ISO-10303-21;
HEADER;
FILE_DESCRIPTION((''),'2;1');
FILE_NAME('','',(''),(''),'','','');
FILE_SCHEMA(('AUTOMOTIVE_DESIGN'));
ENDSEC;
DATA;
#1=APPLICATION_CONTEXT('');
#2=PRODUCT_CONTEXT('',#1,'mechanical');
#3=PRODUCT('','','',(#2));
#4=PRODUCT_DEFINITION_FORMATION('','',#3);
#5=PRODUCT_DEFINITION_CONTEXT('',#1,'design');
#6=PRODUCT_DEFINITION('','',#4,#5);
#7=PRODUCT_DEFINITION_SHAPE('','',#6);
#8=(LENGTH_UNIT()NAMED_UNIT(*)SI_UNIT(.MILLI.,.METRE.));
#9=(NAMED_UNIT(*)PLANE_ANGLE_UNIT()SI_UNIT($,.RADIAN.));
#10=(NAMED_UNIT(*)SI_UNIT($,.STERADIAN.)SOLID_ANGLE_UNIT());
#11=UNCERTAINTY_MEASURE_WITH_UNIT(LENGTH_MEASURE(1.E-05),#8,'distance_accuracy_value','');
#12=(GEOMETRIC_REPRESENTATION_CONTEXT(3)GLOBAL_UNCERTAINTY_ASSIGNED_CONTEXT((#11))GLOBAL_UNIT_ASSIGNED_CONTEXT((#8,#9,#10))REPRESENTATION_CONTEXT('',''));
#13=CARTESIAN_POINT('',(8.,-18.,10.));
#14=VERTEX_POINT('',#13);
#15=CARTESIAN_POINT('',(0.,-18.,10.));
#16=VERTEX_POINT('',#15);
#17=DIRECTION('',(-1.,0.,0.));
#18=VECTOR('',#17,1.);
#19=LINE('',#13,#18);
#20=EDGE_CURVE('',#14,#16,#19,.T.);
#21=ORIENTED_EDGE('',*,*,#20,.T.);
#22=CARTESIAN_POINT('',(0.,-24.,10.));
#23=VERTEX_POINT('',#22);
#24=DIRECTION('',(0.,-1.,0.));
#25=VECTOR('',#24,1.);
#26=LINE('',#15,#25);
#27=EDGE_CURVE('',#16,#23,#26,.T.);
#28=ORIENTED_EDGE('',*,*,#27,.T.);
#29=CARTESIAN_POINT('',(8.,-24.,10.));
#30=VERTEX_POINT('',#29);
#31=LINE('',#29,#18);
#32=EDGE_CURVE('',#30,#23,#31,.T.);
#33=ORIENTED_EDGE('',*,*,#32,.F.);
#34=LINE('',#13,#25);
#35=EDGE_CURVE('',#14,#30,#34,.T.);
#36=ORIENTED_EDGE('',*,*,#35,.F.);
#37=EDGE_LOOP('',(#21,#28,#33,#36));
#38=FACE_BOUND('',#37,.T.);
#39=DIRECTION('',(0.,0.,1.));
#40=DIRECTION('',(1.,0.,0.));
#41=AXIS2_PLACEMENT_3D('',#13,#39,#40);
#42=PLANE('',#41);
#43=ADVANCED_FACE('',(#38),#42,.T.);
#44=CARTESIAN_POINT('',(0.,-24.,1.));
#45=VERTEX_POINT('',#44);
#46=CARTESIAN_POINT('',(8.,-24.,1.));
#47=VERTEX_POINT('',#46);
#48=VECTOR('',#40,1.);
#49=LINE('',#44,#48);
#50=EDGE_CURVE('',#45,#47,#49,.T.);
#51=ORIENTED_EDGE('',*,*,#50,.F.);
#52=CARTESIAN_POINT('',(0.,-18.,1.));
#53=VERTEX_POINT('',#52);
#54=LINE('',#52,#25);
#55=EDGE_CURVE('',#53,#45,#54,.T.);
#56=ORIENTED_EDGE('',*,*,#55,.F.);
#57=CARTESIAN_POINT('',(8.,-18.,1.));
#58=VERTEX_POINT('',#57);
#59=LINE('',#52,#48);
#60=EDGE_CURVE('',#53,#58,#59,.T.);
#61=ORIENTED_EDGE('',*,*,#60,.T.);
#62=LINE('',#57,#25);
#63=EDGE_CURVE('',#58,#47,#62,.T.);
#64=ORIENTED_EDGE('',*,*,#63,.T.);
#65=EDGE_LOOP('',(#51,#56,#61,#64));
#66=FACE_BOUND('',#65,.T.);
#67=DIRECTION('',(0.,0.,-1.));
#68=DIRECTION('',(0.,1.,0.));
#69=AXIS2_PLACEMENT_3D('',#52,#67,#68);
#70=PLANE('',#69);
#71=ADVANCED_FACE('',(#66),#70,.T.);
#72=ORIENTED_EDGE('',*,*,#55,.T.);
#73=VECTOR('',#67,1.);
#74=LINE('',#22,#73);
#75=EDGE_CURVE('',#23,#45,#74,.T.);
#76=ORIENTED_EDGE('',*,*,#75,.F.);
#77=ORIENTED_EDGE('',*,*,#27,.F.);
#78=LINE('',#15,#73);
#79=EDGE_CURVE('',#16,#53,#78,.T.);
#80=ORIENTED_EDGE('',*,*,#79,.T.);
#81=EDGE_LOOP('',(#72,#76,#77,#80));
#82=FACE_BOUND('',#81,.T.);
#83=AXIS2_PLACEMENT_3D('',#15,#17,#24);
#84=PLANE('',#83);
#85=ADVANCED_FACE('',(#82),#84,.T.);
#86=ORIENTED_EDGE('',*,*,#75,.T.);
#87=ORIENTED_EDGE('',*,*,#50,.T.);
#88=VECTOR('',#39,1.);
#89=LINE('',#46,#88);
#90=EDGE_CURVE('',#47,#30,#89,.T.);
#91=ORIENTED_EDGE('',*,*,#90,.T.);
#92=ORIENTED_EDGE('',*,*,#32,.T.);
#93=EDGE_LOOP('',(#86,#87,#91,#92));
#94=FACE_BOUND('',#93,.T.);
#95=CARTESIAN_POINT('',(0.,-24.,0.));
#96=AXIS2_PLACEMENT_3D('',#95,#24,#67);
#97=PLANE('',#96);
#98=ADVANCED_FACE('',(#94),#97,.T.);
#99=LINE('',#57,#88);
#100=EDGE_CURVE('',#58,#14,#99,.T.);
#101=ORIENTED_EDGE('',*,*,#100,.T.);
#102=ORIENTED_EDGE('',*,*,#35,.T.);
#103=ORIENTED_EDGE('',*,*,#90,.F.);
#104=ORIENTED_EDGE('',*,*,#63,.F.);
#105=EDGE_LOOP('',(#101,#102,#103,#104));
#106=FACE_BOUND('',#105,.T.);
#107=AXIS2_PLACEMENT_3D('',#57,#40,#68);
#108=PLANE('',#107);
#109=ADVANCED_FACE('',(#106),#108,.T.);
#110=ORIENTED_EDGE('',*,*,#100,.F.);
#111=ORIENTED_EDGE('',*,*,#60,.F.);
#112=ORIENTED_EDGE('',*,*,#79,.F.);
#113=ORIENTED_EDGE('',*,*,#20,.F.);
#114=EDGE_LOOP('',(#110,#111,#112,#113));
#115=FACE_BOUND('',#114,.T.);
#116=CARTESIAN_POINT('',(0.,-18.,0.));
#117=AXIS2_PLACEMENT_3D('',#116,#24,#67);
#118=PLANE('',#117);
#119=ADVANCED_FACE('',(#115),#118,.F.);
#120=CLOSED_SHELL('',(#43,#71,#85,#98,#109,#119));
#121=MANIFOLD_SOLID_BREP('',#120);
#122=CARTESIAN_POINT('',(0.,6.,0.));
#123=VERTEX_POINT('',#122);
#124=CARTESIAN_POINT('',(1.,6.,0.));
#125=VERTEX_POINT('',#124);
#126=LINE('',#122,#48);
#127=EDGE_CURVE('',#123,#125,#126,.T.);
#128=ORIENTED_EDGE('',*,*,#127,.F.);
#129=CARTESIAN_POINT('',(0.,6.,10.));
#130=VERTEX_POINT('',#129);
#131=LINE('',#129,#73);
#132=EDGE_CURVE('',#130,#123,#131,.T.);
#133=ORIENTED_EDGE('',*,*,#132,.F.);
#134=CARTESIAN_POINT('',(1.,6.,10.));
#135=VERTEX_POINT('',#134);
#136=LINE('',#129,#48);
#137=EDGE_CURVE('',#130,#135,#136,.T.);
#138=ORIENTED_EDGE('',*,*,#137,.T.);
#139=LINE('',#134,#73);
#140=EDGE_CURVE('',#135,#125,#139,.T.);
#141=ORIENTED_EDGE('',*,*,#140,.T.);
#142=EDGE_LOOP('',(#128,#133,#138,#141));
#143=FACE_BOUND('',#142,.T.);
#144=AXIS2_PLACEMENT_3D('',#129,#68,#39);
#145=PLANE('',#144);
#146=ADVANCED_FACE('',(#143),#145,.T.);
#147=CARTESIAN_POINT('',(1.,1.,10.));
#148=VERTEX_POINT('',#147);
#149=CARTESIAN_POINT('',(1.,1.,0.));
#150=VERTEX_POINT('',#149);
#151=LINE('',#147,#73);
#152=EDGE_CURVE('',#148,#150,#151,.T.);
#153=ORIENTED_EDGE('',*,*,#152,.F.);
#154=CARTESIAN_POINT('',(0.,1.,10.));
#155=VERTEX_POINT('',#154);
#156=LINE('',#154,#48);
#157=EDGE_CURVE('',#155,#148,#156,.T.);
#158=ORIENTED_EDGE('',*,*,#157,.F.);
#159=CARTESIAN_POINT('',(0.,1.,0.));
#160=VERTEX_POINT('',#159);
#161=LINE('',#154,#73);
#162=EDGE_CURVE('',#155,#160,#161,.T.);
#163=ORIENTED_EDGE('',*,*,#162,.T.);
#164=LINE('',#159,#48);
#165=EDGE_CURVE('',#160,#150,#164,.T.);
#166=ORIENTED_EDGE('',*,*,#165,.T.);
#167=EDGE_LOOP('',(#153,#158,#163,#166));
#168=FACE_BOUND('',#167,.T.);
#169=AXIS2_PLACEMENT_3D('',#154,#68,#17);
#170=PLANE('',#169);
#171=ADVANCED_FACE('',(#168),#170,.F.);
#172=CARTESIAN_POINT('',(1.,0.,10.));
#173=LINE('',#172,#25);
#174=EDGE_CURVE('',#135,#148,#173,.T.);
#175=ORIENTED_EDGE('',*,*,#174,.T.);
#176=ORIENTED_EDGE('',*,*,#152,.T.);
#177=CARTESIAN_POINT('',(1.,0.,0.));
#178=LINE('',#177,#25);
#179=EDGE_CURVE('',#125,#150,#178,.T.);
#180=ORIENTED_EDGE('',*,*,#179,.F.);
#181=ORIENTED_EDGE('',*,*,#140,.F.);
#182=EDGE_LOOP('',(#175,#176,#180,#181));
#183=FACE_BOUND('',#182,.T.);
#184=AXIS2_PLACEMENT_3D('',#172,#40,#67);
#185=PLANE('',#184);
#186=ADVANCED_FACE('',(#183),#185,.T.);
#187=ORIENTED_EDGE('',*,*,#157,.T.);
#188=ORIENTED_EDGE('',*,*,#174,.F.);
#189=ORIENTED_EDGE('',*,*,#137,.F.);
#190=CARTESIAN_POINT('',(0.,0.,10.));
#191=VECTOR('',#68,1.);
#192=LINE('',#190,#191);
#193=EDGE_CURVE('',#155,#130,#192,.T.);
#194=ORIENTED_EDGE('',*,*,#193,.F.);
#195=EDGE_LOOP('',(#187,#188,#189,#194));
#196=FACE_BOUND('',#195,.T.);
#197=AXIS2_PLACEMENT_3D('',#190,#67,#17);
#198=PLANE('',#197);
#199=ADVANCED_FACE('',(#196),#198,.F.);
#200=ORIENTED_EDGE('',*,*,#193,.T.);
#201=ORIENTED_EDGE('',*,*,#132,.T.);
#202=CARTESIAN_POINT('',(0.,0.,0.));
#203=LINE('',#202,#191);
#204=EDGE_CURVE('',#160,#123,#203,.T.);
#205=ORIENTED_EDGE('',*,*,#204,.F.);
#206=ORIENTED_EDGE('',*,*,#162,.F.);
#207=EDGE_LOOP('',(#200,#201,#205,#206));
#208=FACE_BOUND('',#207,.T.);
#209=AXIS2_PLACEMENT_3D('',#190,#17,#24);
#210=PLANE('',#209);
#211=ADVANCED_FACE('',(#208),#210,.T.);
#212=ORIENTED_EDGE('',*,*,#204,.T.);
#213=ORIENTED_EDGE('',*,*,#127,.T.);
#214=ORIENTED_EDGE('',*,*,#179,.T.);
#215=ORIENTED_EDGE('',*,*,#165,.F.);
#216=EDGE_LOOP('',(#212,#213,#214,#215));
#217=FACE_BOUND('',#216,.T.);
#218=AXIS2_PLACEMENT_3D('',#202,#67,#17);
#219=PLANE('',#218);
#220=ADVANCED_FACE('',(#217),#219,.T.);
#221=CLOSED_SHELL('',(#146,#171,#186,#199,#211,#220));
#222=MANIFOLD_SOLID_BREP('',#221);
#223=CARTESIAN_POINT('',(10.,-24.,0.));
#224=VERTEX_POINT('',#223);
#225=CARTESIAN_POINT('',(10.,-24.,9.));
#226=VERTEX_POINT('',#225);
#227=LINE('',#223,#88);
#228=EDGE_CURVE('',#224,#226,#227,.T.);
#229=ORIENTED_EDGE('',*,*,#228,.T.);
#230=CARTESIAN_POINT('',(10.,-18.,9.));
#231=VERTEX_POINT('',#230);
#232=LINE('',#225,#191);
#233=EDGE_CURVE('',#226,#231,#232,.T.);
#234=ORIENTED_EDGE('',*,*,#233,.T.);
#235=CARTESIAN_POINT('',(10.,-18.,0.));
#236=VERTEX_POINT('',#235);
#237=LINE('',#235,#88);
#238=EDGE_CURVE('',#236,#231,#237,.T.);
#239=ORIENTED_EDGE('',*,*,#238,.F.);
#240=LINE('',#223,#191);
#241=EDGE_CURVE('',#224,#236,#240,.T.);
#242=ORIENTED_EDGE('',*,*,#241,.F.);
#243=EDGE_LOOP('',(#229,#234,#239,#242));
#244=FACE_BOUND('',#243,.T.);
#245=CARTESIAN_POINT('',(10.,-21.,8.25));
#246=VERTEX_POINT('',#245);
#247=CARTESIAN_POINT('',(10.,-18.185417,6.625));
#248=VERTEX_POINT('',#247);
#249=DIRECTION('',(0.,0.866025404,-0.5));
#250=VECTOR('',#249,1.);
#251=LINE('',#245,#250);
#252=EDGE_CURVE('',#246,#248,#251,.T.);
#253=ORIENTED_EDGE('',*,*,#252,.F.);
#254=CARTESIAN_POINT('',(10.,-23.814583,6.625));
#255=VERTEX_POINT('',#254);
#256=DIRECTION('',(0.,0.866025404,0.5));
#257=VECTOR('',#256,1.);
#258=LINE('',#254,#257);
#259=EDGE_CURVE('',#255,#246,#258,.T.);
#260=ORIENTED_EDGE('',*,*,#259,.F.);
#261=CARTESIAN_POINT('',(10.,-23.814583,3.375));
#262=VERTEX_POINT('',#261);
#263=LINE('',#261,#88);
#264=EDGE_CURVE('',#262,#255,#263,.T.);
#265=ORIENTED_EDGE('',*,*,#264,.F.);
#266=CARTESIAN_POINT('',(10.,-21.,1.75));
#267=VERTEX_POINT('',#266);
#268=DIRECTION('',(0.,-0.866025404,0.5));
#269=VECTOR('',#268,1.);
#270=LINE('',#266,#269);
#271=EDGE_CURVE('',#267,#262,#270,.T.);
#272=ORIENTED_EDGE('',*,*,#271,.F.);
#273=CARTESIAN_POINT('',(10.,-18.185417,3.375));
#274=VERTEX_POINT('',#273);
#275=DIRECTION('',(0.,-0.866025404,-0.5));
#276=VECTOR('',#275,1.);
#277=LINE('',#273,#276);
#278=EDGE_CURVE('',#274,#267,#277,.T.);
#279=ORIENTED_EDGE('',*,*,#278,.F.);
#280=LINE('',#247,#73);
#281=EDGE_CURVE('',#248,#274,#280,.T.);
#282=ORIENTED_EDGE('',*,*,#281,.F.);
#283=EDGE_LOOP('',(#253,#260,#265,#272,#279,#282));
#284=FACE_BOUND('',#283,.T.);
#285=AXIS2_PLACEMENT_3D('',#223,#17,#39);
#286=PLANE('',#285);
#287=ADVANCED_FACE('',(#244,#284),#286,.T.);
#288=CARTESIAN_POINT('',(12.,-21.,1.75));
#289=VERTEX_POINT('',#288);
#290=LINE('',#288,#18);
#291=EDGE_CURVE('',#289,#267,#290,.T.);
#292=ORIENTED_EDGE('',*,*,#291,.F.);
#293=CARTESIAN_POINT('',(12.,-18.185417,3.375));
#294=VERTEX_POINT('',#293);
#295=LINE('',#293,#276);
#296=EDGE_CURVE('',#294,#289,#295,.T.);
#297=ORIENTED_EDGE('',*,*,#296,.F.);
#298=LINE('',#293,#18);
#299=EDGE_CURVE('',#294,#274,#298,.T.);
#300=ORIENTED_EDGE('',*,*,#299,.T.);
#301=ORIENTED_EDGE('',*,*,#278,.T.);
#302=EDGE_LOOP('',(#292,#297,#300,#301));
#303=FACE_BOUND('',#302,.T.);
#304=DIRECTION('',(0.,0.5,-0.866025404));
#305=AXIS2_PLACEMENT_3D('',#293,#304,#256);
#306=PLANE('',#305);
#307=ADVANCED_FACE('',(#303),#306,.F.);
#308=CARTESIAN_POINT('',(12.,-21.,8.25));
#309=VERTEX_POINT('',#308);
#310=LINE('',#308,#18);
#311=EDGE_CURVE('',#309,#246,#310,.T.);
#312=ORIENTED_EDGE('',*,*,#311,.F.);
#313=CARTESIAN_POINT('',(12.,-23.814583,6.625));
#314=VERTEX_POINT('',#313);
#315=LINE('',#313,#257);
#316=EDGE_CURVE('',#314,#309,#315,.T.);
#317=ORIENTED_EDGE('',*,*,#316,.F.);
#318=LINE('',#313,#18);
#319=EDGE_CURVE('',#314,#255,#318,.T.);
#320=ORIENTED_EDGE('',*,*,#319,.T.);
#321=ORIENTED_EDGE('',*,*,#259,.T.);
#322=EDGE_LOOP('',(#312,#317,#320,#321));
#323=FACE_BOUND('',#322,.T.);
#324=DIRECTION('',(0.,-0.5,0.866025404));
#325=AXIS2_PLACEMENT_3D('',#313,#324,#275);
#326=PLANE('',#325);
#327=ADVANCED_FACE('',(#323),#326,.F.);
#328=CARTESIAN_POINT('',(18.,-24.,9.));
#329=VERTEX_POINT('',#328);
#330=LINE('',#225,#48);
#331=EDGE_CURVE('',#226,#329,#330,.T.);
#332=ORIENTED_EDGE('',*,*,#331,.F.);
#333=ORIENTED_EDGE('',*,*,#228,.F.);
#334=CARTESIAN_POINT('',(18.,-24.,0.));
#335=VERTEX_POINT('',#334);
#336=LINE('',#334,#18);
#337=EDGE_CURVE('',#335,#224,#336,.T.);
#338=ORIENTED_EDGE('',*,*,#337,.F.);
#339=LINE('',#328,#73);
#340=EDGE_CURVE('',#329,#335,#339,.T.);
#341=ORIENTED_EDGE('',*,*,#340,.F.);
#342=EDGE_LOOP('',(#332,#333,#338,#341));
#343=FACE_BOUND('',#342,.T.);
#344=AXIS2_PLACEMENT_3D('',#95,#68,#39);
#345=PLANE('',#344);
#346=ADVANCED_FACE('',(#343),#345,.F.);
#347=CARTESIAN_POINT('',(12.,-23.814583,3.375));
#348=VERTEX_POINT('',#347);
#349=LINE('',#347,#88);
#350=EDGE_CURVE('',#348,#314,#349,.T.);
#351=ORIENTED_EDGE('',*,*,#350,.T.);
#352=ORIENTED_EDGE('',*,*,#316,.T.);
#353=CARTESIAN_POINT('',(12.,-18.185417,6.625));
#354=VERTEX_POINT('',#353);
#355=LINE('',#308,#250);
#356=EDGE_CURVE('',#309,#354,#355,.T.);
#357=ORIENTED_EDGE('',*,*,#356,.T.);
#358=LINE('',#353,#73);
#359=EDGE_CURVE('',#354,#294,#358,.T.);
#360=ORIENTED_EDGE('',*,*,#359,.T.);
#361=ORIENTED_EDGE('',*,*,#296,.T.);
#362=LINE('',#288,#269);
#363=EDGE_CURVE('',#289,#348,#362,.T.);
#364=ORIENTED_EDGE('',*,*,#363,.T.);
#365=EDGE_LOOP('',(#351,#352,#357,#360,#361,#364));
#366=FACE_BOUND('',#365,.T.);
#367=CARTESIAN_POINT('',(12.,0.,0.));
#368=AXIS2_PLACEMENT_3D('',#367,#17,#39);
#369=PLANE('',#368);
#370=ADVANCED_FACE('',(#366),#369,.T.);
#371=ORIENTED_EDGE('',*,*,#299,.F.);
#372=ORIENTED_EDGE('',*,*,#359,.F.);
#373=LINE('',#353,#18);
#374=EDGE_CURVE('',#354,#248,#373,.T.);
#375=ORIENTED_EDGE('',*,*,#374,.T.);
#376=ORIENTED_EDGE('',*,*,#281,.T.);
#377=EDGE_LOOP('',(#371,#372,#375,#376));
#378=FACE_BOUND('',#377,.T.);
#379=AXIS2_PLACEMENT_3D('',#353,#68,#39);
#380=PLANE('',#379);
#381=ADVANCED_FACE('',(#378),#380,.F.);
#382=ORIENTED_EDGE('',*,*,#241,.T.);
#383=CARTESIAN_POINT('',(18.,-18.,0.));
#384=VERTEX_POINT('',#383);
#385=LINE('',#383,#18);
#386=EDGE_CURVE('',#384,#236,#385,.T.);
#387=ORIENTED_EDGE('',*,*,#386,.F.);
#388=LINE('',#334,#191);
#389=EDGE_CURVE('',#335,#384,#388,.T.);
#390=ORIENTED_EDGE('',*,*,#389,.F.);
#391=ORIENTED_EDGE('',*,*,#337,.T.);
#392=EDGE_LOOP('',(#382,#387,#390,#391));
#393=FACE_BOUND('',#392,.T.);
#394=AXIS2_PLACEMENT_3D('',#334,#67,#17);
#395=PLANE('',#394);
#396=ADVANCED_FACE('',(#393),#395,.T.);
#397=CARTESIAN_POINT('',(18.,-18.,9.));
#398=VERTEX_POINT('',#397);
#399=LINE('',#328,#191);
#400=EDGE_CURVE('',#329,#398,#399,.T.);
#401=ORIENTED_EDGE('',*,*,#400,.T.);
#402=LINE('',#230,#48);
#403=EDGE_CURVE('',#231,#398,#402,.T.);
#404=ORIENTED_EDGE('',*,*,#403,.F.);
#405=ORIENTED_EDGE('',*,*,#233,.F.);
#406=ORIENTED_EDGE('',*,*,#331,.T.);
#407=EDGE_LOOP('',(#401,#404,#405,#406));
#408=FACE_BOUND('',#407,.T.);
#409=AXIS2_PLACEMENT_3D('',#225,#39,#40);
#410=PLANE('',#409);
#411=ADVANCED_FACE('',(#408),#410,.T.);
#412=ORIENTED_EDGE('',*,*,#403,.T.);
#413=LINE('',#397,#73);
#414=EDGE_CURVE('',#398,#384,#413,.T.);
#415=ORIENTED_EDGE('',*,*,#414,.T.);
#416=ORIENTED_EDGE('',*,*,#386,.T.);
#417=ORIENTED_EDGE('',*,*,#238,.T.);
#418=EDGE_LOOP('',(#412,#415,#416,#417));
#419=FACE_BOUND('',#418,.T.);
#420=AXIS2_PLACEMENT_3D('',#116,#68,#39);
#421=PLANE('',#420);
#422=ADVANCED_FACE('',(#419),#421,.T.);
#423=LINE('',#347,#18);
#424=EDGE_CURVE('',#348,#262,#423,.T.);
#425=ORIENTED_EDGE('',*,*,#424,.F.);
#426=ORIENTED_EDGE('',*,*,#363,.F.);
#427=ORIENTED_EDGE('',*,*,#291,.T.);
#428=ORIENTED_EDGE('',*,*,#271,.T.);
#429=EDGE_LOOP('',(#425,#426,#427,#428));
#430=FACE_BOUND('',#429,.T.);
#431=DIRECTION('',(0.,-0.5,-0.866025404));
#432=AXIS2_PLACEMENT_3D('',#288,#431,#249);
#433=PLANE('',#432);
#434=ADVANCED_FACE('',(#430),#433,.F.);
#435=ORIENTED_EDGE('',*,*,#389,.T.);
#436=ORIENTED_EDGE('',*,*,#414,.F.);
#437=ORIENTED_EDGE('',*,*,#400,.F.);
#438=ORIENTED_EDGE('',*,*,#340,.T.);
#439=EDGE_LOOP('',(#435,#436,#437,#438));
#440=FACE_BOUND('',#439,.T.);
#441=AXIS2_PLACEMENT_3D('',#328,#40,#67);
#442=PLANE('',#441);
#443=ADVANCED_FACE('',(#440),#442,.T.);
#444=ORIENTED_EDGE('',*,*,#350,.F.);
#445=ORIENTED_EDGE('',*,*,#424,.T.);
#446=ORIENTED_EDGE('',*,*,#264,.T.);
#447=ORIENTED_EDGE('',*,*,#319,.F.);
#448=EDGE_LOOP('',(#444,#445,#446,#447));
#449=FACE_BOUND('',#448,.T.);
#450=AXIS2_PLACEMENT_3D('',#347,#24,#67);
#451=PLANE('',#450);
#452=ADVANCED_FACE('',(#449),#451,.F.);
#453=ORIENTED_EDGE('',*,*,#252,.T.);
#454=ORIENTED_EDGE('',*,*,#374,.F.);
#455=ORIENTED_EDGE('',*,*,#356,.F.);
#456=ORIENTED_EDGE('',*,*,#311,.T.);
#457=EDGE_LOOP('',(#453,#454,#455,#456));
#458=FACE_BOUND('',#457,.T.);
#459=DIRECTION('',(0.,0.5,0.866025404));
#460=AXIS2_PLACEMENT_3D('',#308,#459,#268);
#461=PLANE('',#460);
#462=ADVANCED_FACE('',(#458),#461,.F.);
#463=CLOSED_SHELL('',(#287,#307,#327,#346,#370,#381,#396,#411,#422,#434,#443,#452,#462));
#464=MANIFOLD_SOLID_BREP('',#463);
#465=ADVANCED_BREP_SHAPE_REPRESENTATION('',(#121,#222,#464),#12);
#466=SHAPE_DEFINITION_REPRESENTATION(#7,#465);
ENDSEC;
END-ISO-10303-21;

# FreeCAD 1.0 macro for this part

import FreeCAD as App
import Part
import Sketcher
Q = App.Units.Quantity


def add_polygon(sketch, points):
    """Adds a closed chain of lines whose ends are joined by coincident constraints."""
    first, n = sketch.GeometryCount, len(points)
    for a, b in zip(points, points[1:] + points[:1]):
        sketch.addGeometry(Part.LineSegment(App.Vector(*a, 0), App.Vector(*b, 0)), False)
    for i in range(n):
        sketch.addConstraint(Sketcher.Constraint("Coincident", first + i, 2, first + (i + 1) % n, 1))

doc = App.newDocument("Part")
body = doc.addObject("PartDesign::Body", "Body")

sketch1 = body.newObject("Sketcher::SketchObject", "Sketch")
sketch1.AttachmentSupport = (doc.getObject("XZ_Plane"), [""])
sketch1.MapMode = "FlatFace"
sketch1.AttachmentOffset = App.Placement(App.Vector(0, 0, 24), App.Rotation())
add_polygon(sketch1, [(8, 1), (8, 10), (0, 10), (0, 1)])
sketch1.addConstraint([
    Sketcher.Constraint("Vertical", 0),
    Sketcher.Constraint("Horizontal", 1),
    Sketcher.Constraint("Vertical", 2),
    Sketcher.Constraint("Horizontal", 3),
    Sketcher.Constraint("PointOnObject", 1, 2, -2),
    Sketcher.Constraint("DistanceX", 1, 2, 1, 1, Q("8 mm")),
    Sketcher.Constraint("DistanceY", 0, 1, 0, 2, Q("9 mm")),
    Sketcher.Constraint("DistanceY", -1, 1, 0, 2, Q("10 mm")),
])
pad1 = body.newObject("PartDesign::Pad", "Pad")
pad1.Profile = sketch1
pad1.Length = 6
pad1.Reversed = True
body2 = doc.addObject("PartDesign::Body", "Body001")

sketch2 = body2.newObject("Sketcher::SketchObject", "Sketch001")
sketch2.AttachmentSupport = (doc.getObject("XZ_Plane001"), [""])
sketch2.MapMode = "FlatFace"
sketch2.AttachmentOffset = App.Placement(App.Vector(0, 0, 18), App.Rotation())
add_polygon(sketch2, [(10, 0), (10, 9), (18, 9), (18, 0)])
sketch2.addConstraint([
    Sketcher.Constraint("Vertical", 0),
    Sketcher.Constraint("Horizontal", 1),
    Sketcher.Constraint("Vertical", 2),
    Sketcher.Constraint("Horizontal", 3),
    Sketcher.Constraint("PointOnObject", 2, 2, -1),
    Sketcher.Constraint("DistanceX", 1, 1, 1, 2, Q("8 mm")),
    Sketcher.Constraint("DistanceY", 0, 1, 0, 2, Q("9 mm")),
    Sketcher.Constraint("DistanceX", -1, 1, 0, 2, Q("10 mm")),
])
pad2 = body2.newObject("PartDesign::Pad", "Pad001")
pad2.Profile = sketch2
pad2.Length = 6

sketch3 = body2.newObject("Sketcher::SketchObject", "Sketch002")
sketch3.AttachmentSupport = (doc.getObject("YZ_Plane001"), [""])
sketch3.MapMode = "FlatFace"
sketch3.AttachmentOffset = App.Placement(App.Vector(0, 0, 10), App.Rotation())
add_polygon(sketch3, [(-21, 8.2), (-18.2, 6.6), (-18.2, 3.4), (-21, 1.8), (-23.8, 3.4), (-23.8, 6.6)])
sketch3.addConstraint([
    Sketcher.Constraint("Vertical", 1),
    Sketcher.Constraint("Vertical", 4),
    Sketcher.Constraint("Parallel", 0, 3),
    Sketcher.Constraint("Parallel", 2, 5),
    Sketcher.Constraint("Horizontal", 1, 2, 3, 2),
    Sketcher.Constraint("Horizontal", 0, 2, 4, 2),
    Sketcher.Constraint("Vertical", 2, 2, 5, 2),
    Sketcher.Constraint("Angle", 0, Q("-30 deg")),
    Sketcher.Constraint("DistanceX", 2, 2, -1, 1, Q("21 mm")),
    Sketcher.Constraint("DistanceY", 1, 2, 1, 1, Q("3.25 mm")),
    Sketcher.Constraint("DistanceY", 2, 2, 5, 2, Q("6.5 mm")),
    Sketcher.Constraint("DistanceY", -1, 1, 2, 2, Q("1.75 mm")),
])
pocket1 = body2.newObject("PartDesign::Pocket", "Pocket")
pocket1.Profile = sketch3
pocket1.Length = 2
pocket1.Reversed = True
body3 = doc.addObject("PartDesign::Body", "Body002")

sketch4 = body3.newObject("Sketcher::SketchObject", "Sketch003")
sketch4.AttachmentSupport = (doc.getObject("XY_Plane002"), [""])
sketch4.MapMode = "FlatFace"
add_polygon(sketch4, [(1, 6), (1, 1), (0, 1), (0, 6)])
sketch4.addConstraint([
    Sketcher.Constraint("Vertical", 0),
    Sketcher.Constraint("Horizontal", 1),
    Sketcher.Constraint("Vertical", 2),
    Sketcher.Constraint("Horizontal", 3),
    Sketcher.Constraint("PointOnObject", 1, 2, -2),
    Sketcher.Constraint("DistanceX", 1, 2, 1, 1, Q("1 mm")),
    Sketcher.Constraint("DistanceY", 0, 2, 0, 1, Q("5 mm")),
    Sketcher.Constraint("DistanceY", -1, 1, 0, 2, Q("1 mm")),
])
pad3 = body3.newObject("PartDesign::Pad", "Pad002")
pad3.Profile = sketch4
pad3.Length = 10

doc.recompute()
